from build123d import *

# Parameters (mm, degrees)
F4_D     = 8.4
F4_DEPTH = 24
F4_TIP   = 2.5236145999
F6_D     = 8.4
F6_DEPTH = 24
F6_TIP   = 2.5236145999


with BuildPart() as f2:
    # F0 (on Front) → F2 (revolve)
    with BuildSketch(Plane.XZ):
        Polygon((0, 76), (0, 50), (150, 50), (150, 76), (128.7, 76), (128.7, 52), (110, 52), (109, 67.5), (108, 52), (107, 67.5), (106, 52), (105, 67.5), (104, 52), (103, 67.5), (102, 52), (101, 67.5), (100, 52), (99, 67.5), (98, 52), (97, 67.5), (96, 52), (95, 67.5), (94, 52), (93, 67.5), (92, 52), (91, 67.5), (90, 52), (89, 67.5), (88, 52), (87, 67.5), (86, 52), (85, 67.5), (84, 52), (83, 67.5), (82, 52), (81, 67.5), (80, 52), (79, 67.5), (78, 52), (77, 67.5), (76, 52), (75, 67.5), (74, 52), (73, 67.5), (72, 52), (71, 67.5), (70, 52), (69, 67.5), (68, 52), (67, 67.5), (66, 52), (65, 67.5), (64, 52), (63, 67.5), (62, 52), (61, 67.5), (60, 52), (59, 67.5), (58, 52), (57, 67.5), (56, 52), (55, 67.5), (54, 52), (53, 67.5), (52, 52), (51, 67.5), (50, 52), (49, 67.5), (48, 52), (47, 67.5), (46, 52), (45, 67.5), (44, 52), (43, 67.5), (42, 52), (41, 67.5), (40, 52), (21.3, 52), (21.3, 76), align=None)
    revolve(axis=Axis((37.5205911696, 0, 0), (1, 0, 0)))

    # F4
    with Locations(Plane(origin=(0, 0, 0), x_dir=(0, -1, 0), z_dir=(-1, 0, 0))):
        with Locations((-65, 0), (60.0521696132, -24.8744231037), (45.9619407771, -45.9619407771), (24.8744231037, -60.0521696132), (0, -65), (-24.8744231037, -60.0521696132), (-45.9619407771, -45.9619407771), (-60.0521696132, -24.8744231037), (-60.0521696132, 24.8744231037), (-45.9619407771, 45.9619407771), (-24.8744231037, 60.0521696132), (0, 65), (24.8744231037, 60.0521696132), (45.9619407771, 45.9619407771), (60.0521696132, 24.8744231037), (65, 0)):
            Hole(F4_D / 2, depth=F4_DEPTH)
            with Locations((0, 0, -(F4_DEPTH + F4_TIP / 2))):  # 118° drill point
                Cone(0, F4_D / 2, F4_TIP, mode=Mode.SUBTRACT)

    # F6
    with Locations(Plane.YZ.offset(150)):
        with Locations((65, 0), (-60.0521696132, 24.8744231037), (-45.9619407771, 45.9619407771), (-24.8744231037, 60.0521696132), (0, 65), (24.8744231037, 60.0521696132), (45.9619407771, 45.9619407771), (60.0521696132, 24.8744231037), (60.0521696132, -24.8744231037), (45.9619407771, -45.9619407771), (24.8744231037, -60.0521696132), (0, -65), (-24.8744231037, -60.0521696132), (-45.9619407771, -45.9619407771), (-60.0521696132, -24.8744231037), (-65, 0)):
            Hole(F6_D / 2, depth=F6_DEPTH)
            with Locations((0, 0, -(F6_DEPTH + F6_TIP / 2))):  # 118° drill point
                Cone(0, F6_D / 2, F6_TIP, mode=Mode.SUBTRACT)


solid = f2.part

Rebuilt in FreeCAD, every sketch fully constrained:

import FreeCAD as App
import Part
import Sketcher


def add_polygon(sketch, points):
    """Adds a closed chain of lines whose ends are joined by coincident constraints."""
    first, n = sketch.GeometryCount, len(points)
    for a, b in zip(points, points[1:] + points[:1]):
        sketch.addGeometry(Part.LineSegment(App.Vector(*a, 0), App.Vector(*b, 0)), False)
    for i in range(n):
        sketch.addConstraint(Sketcher.Constraint("Coincident", first + i, 2, first + (i + 1) % n, 1))

doc = App.newDocument("Part")
body = doc.addObject("PartDesign::Body", "Body")

sketch1 = body.newObject("Sketcher::SketchObject", "Sketch")
sketch1.AttachmentSupport = (doc.getObject("XZ_Plane"), [""])
sketch1.MapMode = "FlatFace"
add_polygon(sketch1, [(0, 76), (0, 50), (150, 50), (150, 76), (129, 76), (129, 52), (110, 52), (109, 68), (108, 52), (107, 68), (106, 52), (105, 68), (104, 52), (103, 68), (102, 52), (101, 68), (100, 52), (99, 68), (98, 52), (97, 68), (96, 52), (95, 68), (94, 52), (93, 68), (92, 52), (91, 68), (90, 52), (89, 68), (88, 52), (87, 68), (86, 52), (85, 68), (84, 52), (83, 68), (82, 52), (81, 68), (80, 52), (79, 68), (78, 52), (77, 68), (76, 52), (75, 68), (74, 52), (73, 68), (72, 52), (71, 68), (70, 52), (69, 68), (68, 52), (67, 68), (66, 52), (65, 68), (64, 52), (63, 68), (62, 52), (61, 68), (60, 52), (59, 68), (58, 52), (57, 68), (56, 52), (55, 68), (54, 52), (53, 68), (52, 52), (51, 68), (50, 52), (49, 68), (48, 52), (47, 68), (46, 52), (45, 68), (44, 52), (43, 68), (42, 52), (41, 68), (40, 52), (21, 52), (21, 76)])
sketch1.addConstraint([
    Sketcher.Constraint("Vertical", 0),
    Sketcher.Constraint("Horizontal", 1),
    Sketcher.Constraint("Vertical", 2),
    Sketcher.Constraint("Horizontal", 3),
    Sketcher.Constraint("Vertical", 4),
    Sketcher.Constraint("Horizontal", 5),
    Sketcher.Constraint("Horizontal", 76),
    Sketcher.Constraint("Vertical", 77),
    Sketcher.Constraint("Horizontal", 78),
    Sketcher.Constraint("PointOnObject", 0, 2, -2),
    Sketcher.Constraint("Parallel", 6, 8),
    Sketcher.Constraint("Parallel", 7, 9),
    Sketcher.Constraint("Parallel", 8, 10),
    Sketcher.Constraint("Parallel", 9, 11),
    Sketcher.Constraint("Parallel", 10, 12),
    Sketcher.Constraint("Parallel", 11, 13),
    Sketcher.Constraint("Parallel", 12, 14),
    Sketcher.Constraint("Parallel", 13, 15),
    Sketcher.Constraint("Parallel", 14, 16),
    Sketcher.Constraint("Parallel", 15, 17),
    Sketcher.Constraint("Parallel", 16, 18),
    Sketcher.Constraint("Parallel", 17, 19),
    Sketcher.Constraint("Parallel", 18, 20),
    Sketcher.Constraint("Parallel", 19, 21),
    Sketcher.Constraint("Parallel", 20, 22),
    Sketcher.Constraint("Parallel", 21, 23),
    Sketcher.Constraint("Parallel", 22, 24),
    Sketcher.Constraint("Parallel", 23, 25),
    Sketcher.Constraint("Parallel", 24, 26),
    Sketcher.Constraint("Parallel", 25, 27),
    Sketcher.Constraint("Parallel", 26, 28),
    Sketcher.Constraint("Parallel", 27, 29),
    Sketcher.Constraint("Parallel", 28, 30),
    Sketcher.Constraint("Parallel", 29, 31),
    Sketcher.Constraint("Parallel", 30, 32),
    Sketcher.Constraint("Parallel", 31, 33),
    Sketcher.Constraint("Parallel", 32, 34),
    Sketcher.Constraint("Parallel", 33, 35),
    Sketcher.Constraint("Parallel", 34, 36),
    Sketcher.Constraint("Parallel", 35, 37),
    Sketcher.Constraint("Parallel", 36, 38),
    Sketcher.Constraint("Parallel", 37, 39),
    Sketcher.Constraint("Parallel", 38, 40),
    Sketcher.Constraint("Parallel", 39, 41),
    Sketcher.Constraint("Parallel", 40, 42),
    Sketcher.Constraint("Parallel", 41, 43),
    Sketcher.Constraint("Parallel", 42, 44),
    Sketcher.Constraint("Parallel", 43, 45),
    Sketcher.Constraint("Parallel", 44, 46),
    Sketcher.Constraint("Parallel", 45, 47),
    Sketcher.Constraint("Parallel", 46, 48),
    Sketcher.Constraint("Parallel", 47, 49),
    Sketcher.Constraint("Parallel", 48, 50),
    Sketcher.Constraint("Parallel", 49, 51),
    Sketcher.Constraint("Parallel", 50, 52),
    Sketcher.Constraint("Parallel", 51, 53),
    Sketcher.Constraint("Parallel", 52, 54),
    Sketcher.Constraint("Parallel", 53, 55),
    Sketcher.Constraint("Parallel", 54, 56),
    Sketcher.Constraint("Parallel", 55, 57),
    Sketcher.Constraint("Parallel", 56, 58),
    Sketcher.Constraint("Parallel", 57, 59),
    Sketcher.Constraint("Parallel", 58, 60),
    Sketcher.Constraint("Parallel", 59, 61),
    Sketcher.Constraint("Parallel", 60, 62),
    Sketcher.Constraint("Parallel", 61, 63),
    Sketcher.Constraint("Parallel", 62, 64),
    Sketcher.Constraint("Parallel", 63, 65),
    Sketcher.Constraint("Parallel", 64, 66),
    Sketcher.Constraint("Parallel", 65, 67),
    Sketcher.Constraint("Parallel", 66, 68),
    Sketcher.Constraint("Parallel", 67, 69),
    Sketcher.Constraint("Parallel", 68, 70),
    Sketcher.Constraint("Parallel", 69, 71),
    Sketcher.Constraint("Parallel", 70, 72),
    Sketcher.Constraint("Parallel", 71, 73),
    Sketcher.Constraint("Parallel", 72, 74),
    Sketcher.Constraint("Parallel", 73, 75),
    Sketcher.Constraint("Horizontal", 5, 2, 7, 2),
    Sketcher.Constraint("Horizontal", 6, 2, 8, 2),
    Sketcher.Constraint("Horizontal", 7, 2, 9, 2),
    Sketcher.Constraint("Horizontal", 8, 2, 10, 2),
    Sketcher.Constraint("Horizontal", 9, 2, 11, 2),
    Sketcher.Constraint("Horizontal", 10, 2, 12, 2),
    Sketcher.Constraint("Horizontal", 11, 2, 13, 2),
    Sketcher.Constraint("Horizontal", 12, 2, 14, 2),
    Sketcher.Constraint("Horizontal", 13, 2, 15, 2),
    Sketcher.Constraint("Horizontal", 14, 2, 16, 2),
    Sketcher.Constraint("Horizontal", 15, 2, 17, 2),
    Sketcher.Constraint("Horizontal", 16, 2, 18, 2),
    Sketcher.Constraint("Horizontal", 17, 2, 19, 2),
    Sketcher.Constraint("Horizontal", 18, 2, 20, 2),
    Sketcher.Constraint("Horizontal", 19, 2, 21, 2),
    Sketcher.Constraint("Horizontal", 20, 2, 22, 2),
    Sketcher.Constraint("Horizontal", 21, 2, 23, 2),
    Sketcher.Constraint("Horizontal", 22, 2, 24, 2),
    Sketcher.Constraint("Horizontal", 23, 2, 25, 2),
    Sketcher.Constraint("Horizontal", 24, 2, 26, 2),
    Sketcher.Constraint("Horizontal", 25, 2, 27, 2),
    Sketcher.Constraint("Horizontal", 26, 2, 28, 2),
    Sketcher.Constraint("Horizontal", 27, 2, 29, 2),
    Sketcher.Constraint("Horizontal", 28, 2, 30, 2),
    Sketcher.Constraint("Horizontal", 29, 2, 31, 2),
    Sketcher.Constraint("Horizontal", 30, 2, 32, 2),
    Sketcher.Constraint("Horizontal", 31, 2, 33, 2),
    Sketcher.Constraint("Horizontal", 32, 2, 34, 2),
    Sketcher.Constraint("Horizontal", 33, 2, 35, 2),
    Sketcher.Constraint("Horizontal", 34, 2, 36, 2),
    Sketcher.Constraint("Horizontal", 35, 2, 37, 2),
    Sketcher.Constraint("Horizontal", 36, 2, 38, 2),
    Sketcher.Constraint("Horizontal", 37, 2, 39, 2),
    Sketcher.Constraint("Horizontal", 38, 2, 40, 2),
    Sketcher.Constraint("Horizontal", 39, 2, 41, 2),
    Sketcher.Constraint("Horizontal", 40, 2, 42, 2),
    Sketcher.Constraint("Horizontal", 41, 2, 43, 2),
    Sketcher.Constraint("Horizontal", 42, 2, 44, 2),
    Sketcher.Constraint("Horizontal", 43, 2, 45, 2),
    Sketcher.Constraint("Horizontal", 44, 2, 46, 2),
    Sketcher.Constraint("Horizontal", 45, 2, 47, 2),
    Sketcher.Constraint("Horizontal", 46, 2, 48, 2),
    Sketcher.Constraint("Horizontal", 47, 2, 49, 2),
    Sketcher.Constraint("Horizontal", 48, 2, 50, 2),
    Sketcher.Constraint("Horizontal", 49, 2, 51, 2),
    Sketcher.Constraint("Horizontal", 50, 2, 52, 2),
    Sketcher.Constraint("Horizontal", 51, 2, 53, 2),
    Sketcher.Constraint("Horizontal", 52, 2, 54, 2),
    Sketcher.Constraint("Horizontal", 53, 2, 55, 2),
    Sketcher.Constraint("Horizontal", 54, 2, 56, 2),
    Sketcher.Constraint("Horizontal", 55, 2, 57, 2),
    Sketcher.Constraint("Horizontal", 56, 2, 58, 2),
    Sketcher.Constraint("Horizontal", 57, 2, 59, 2),
    Sketcher.Constraint("Horizontal", 58, 2, 60, 2),
    Sketcher.Constraint("Horizontal", 59, 2, 61, 2),
    Sketcher.Constraint("Horizontal", 60, 2, 62, 2),
    Sketcher.Constraint("Horizontal", 61, 2, 63, 2),
    Sketcher.Constraint("Horizontal", 62, 2, 64, 2),
    Sketcher.Constraint("Horizontal", 63, 2, 65, 2),
    Sketcher.Constraint("Horizontal", 64, 2, 66, 2),
    Sketcher.Constraint("Horizontal", 65, 2, 67, 2),
    Sketcher.Constraint("Horizontal", 66, 2, 68, 2),
    Sketcher.Constraint("Horizontal", 67, 2, 69, 2),
    Sketcher.Constraint("Horizontal", 68, 2, 70, 2),
    Sketcher.Constraint("Horizontal", 69, 2, 71, 2),
    Sketcher.Constraint("Horizontal", 70, 2, 72, 2),
    Sketcher.Constraint("Horizontal", 71, 2, 73, 2),
    Sketcher.Constraint("Horizontal", 72, 2, 74, 2),
    Sketcher.Constraint("Horizontal", 73, 2, 75, 2),
    Sketcher.Constraint("Horizontal", 3, 2, 77, 2),
    Sketcher.Constraint("Equal", 5, 76),
    Sketcher.Constraint("Equal", 3, 78),
    Sketcher.Constraint("Equal", 6, 7),
    Sketcher.Constraint("DistanceX", 1, 1, 1, 2, 150.0),
    Sketcher.Constraint("DistanceY", 0, 2, 0, 1, 26.0),
    Sketcher.Constraint("DistanceY", 4, 2, 4, 1, 24.0),
    Sketcher.Constraint("DistanceX", 3, 2, 3, 1, 21.3),
    Sketcher.Constraint("DistanceX", 5, 2, 5, 1, 18.7),
    Sketcher.Constraint("DistanceY", -1, 1, 0, 2, 50.0),
    Sketcher.Constraint("DistanceY", -1, 1, 6, 2, 67.5),
])
revolution = body.newObject("PartDesign::Revolution", "Revolution")
revolution.Profile = sketch1
revolution.ReferenceAxis = (sketch1, ["H_Axis"])
revolution.Angle = 360

sketch2 = body.newObject("Sketcher::SketchObject", "Sketch001")
sketch2.AttachmentSupport = (doc.getObject("YZ_Plane"), [""])
sketch2.MapMode = "FlatFace"
sketch2.addGeometry([
    Part.Circle(App.Vector(65, 0, 0), App.Vector(0, 0, 1), 4.2),
    Part.Circle(App.Vector(-60.1, -24.9, 0), App.Vector(0, 0, 1), 4.2),
    Part.Circle(App.Vector(-46, -46, 0), App.Vector(0, 0, 1), 4.2),
    Part.Circle(App.Vector(-24.9, -60.1, 0), App.Vector(0, 0, 1), 4.2),
    Part.Circle(App.Vector(0, -65, 0), App.Vector(0, 0, 1), 4.2),
    Part.Circle(App.Vector(24.9, -60.1, 0), App.Vector(0, 0, 1), 4.2),
    Part.Circle(App.Vector(46, -46, 0), App.Vector(0, 0, 1), 4.2),
    Part.Circle(App.Vector(60.1, -24.9, 0), App.Vector(0, 0, 1), 4.2),
    Part.Circle(App.Vector(60.1, 24.9, 0), App.Vector(0, 0, 1), 4.2),
    Part.Circle(App.Vector(46, 46, 0), App.Vector(0, 0, 1), 4.2),
    Part.Circle(App.Vector(24.9, 60.1, 0), App.Vector(0, 0, 1), 4.2),
    Part.Circle(App.Vector(0, 65, 0), App.Vector(0, 0, 1), 4.2),
    Part.Circle(App.Vector(-24.9, 60.1, 0), App.Vector(0, 0, 1), 4.2),
    Part.Circle(App.Vector(-46, 46, 0), App.Vector(0, 0, 1), 4.2),
    Part.Circle(App.Vector(-60.1, 24.9, 0), App.Vector(0, 0, 1), 4.2),
    Part.Circle(App.Vector(-65, 0, 0), App.Vector(0, 0, 1), 4.2),
], False)
sketch2.addConstraint([
    Sketcher.Constraint("Equal", 0, 1),
    Sketcher.Constraint("Equal", 1, 2),
    Sketcher.Constraint("Equal", 2, 3),
    Sketcher.Constraint("Equal", 3, 4),
    Sketcher.Constraint("Equal", 4, 5),
    Sketcher.Constraint("Equal", 5, 6),
    Sketcher.Constraint("Equal", 6, 7),
    Sketcher.Constraint("Equal", 7, 8),
    Sketcher.Constraint("Equal", 8, 9),
    Sketcher.Constraint("Equal", 9, 10),
    Sketcher.Constraint("Equal", 10, 11),
    Sketcher.Constraint("Equal", 11, 12),
    Sketcher.Constraint("Equal", 12, 13),
    Sketcher.Constraint("Equal", 13, 14),
    Sketcher.Constraint("Equal", 14, 15),
    Sketcher.Constraint("Symmetric", 1, 3, 8, 3, -1, 1),
    Sketcher.Constraint("Symmetric", 2, 3, 9, 3, -1, 1),
    Sketcher.Constraint("Symmetric", 3, 3, 10, 3, -1, 1),
    Sketcher.Constraint("Symmetric", 4, 3, 11, 3, -1, 1),
    Sketcher.Constraint("Symmetric", 5, 3, 12, 3, -1, 1),
    Sketcher.Constraint("Symmetric", 6, 3, 13, 3, -1, 1),
    Sketcher.Constraint("Symmetric", 7, 3, 14, 3, -1, 1),
    Sketcher.Constraint("Symmetric", 0, 3, 15, 3, -1, 1),
    Sketcher.Constraint("Symmetric", 3, 3, 5, 3, -2),
    Sketcher.Constraint("Symmetric", 2, 3, 6, 3, -2),
    Sketcher.Constraint("Symmetric", 1, 3, 7, 3, -2),
    Sketcher.Constraint("PointOnObject", 0, 3, -1),
    Sketcher.Constraint("PointOnObject", 4, 3, -2),
    Sketcher.Constraint("Diameter", 0, 8.4),
    Sketcher.Constraint("DistanceX", -1, 1, 0, 3, 65.0),
    Sketcher.Constraint("DistanceY", 4, 3, -1, 1, 65.0),
    Sketcher.Constraint("DistanceX", 1, 3, -1, 1, 60.05217),
    Sketcher.Constraint("DistanceX", 2, 3, -1, 1, 45.961941),
    Sketcher.Constraint("DistanceY", 2, 3, -1, 1, 45.961941),
    Sketcher.Constraint("DistanceY", 3, 3, -1, 1, 60.05217),
    Sketcher.Constraint("DistanceY", 1, 3, -1, 1, 24.874423),
    Sketcher.Constraint("DistanceX", 3, 3, -1, 1, 24.874423),
])
doc.recompute()
hole = body.newObject("PartDesign::Hole", "Hole")
hole.Profile = sketch2
hole.ThreadType = "None"
hole.Diameter = 8.4
hole.DepthType = "Dimension"
hole.Depth = 24
hole.DrillPoint = "Angled"
hole.DrillPointAngle = 118
hole.Reversed = True

sketch3 = body.newObject("Sketcher::SketchObject", "Sketch002")
sketch3.AttachmentSupport = (doc.getObject("YZ_Plane"), [""])
sketch3.MapMode = "FlatFace"
sketch3.AttachmentOffset = App.Placement(App.Vector(0, 0, 150), App.Rotation())
sketch3.addGeometry([
    Part.Circle(App.Vector(65, 0, 0), App.Vector(0, 0, 1), 4.2),
    Part.Circle(App.Vector(-60.1, 24.9, 0), App.Vector(0, 0, 1), 4.2),
    Part.Circle(App.Vector(-46, 46, 0), App.Vector(0, 0, 1), 4.2),
    Part.Circle(App.Vector(-24.9, 60.1, 0), App.Vector(0, 0, 1), 4.2),
    Part.Circle(App.Vector(0, 65, 0), App.Vector(0, 0, 1), 4.2),
    Part.Circle(App.Vector(24.9, 60.1, 0), App.Vector(0, 0, 1), 4.2),
    Part.Circle(App.Vector(46, 46, 0), App.Vector(0, 0, 1), 4.2),
    Part.Circle(App.Vector(60.1, 24.9, 0), App.Vector(0, 0, 1), 4.2),
    Part.Circle(App.Vector(60.1, -24.9, 0), App.Vector(0, 0, 1), 4.2),
    Part.Circle(App.Vector(46, -46, 0), App.Vector(0, 0, 1), 4.2),
    Part.Circle(App.Vector(24.9, -60.1, 0), App.Vector(0, 0, 1), 4.2),
    Part.Circle(App.Vector(0, -65, 0), App.Vector(0, 0, 1), 4.2),
    Part.Circle(App.Vector(-24.9, -60.1, 0), App.Vector(0, 0, 1), 4.2),
    Part.Circle(App.Vector(-46, -46, 0), App.Vector(0, 0, 1), 4.2),
    Part.Circle(App.Vector(-60.1, -24.9, 0), App.Vector(0, 0, 1), 4.2),
    Part.Circle(App.Vector(-65, 0, 0), App.Vector(0, 0, 1), 4.2),
], False)
sketch3.addConstraint([
    Sketcher.Constraint("Equal", 0, 1),
    Sketcher.Constraint("Equal", 1, 2),
    Sketcher.Constraint("Equal", 2, 3),
    Sketcher.Constraint("Equal", 3, 4),
    Sketcher.Constraint("Equal", 4, 5),
    Sketcher.Constraint("Equal", 5, 6),
    Sketcher.Constraint("Equal", 6, 7),
    Sketcher.Constraint("Equal", 7, 8),
    Sketcher.Constraint("Equal", 8, 9),
    Sketcher.Constraint("Equal", 9, 10),
    Sketcher.Constraint("Equal", 10, 11),
    Sketcher.Constraint("Equal", 11, 12),
    Sketcher.Constraint("Equal", 12, 13),
    Sketcher.Constraint("Equal", 13, 14),
    Sketcher.Constraint("Equal", 14, 15),
    Sketcher.Constraint("Symmetric", 1, 3, 8, 3, -1, 1),
    Sketcher.Constraint("Symmetric", 2, 3, 9, 3, -1, 1),
    Sketcher.Constraint("Symmetric", 3, 3, 10, 3, -1, 1),
    Sketcher.Constraint("Symmetric", 4, 3, 11, 3, -1, 1),
    Sketcher.Constraint("Symmetric", 5, 3, 12, 3, -1, 1),
    Sketcher.Constraint("Symmetric", 6, 3, 13, 3, -1, 1),
    Sketcher.Constraint("Symmetric", 7, 3, 14, 3, -1, 1),
    Sketcher.Constraint("Symmetric", 0, 3, 15, 3, -1, 1),
    Sketcher.Constraint("Symmetric", 3, 3, 5, 3, -2),
    Sketcher.Constraint("Symmetric", 2, 3, 6, 3, -2),
    Sketcher.Constraint("Symmetric", 1, 3, 7, 3, -2),
    Sketcher.Constraint("PointOnObject", 0, 3, -1),
    Sketcher.Constraint("PointOnObject", 4, 3, -2),
    Sketcher.Constraint("Diameter", 0, 8.4),
    Sketcher.Constraint("DistanceX", -1, 1, 0, 3, 65.0),
    Sketcher.Constraint("DistanceY", -1, 1, 4, 3, 65.0),
    Sketcher.Constraint("DistanceX", 1, 3, -1, 1, 60.05217),
    Sketcher.Constraint("DistanceX", 2, 3, -1, 1, 45.961941),
    Sketcher.Constraint("DistanceY", -1, 1, 2, 3, 45.961941),
    Sketcher.Constraint("DistanceY", -1, 1, 3, 3, 60.05217),
    Sketcher.Constraint("DistanceY", -1, 1, 1, 3, 24.874423),
    Sketcher.Constraint("DistanceX", 3, 3, -1, 1, 24.874423),
])
doc.recompute()
hole2 = body.newObject("PartDesign::Hole", "Hole001")
hole2.Profile = sketch3
hole2.ThreadType = "None"
hole2.Diameter = 8.4
hole2.DepthType = "Dimension"
hole2.Depth = 24
hole2.DrillPoint = "Angled"
hole2.DrillPointAngle = 118

doc.recompute()
